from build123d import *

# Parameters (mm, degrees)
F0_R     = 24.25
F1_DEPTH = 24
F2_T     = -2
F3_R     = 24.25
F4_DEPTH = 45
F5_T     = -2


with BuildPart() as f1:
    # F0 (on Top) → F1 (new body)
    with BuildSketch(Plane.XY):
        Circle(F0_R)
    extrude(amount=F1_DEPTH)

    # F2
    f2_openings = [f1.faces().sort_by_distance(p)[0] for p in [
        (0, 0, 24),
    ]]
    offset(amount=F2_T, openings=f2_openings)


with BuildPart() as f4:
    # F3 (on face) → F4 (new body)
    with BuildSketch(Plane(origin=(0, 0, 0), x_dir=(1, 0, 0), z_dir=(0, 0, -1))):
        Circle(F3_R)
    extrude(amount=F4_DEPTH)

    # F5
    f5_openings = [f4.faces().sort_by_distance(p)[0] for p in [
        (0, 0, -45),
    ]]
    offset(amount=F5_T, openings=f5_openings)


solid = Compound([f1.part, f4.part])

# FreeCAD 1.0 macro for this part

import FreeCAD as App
import Part
import Sketcher

V = App.Vector


def faces_at(feature, points):
    """Names of the faces that lie closest to the given points."""
    faces = feature.Shape.Faces
    near = lambda p: min(range(len(faces)), key=lambda i: faces[i].distToShape(Part.Vertex(*p))[0])
    return sorted({f"Face{near(p) + 1}" for p in points})

doc = App.newDocument("Part")
body = doc.addObject("PartDesign::Body", "Body")

sketch1 = body.newObject("Sketcher::SketchObject", "Sketch")
sketch1.AttachmentSupport = (doc.getObject("XY_Plane"), [""])
sketch1.MapMode = "FlatFace"
sketch1.addGeometry(Part.Circle(V(0, 0, 0), V(0, 0, 1), 24), False)
sketch1.addConstraint(Sketcher.Constraint("Coincident", 0, 3, -1, 1))
sketch1.addConstraint(Sketcher.Constraint("Diameter", 0, 48.5))
pad1 = body.newObject("PartDesign::Pad", "Pad")
pad1.Profile = sketch1
pad1.Length = 24
doc.recompute()

thickness = body.newObject("PartDesign::Thickness", "Thickness")
thickness.Base = (pad1, faces_at(pad1, [(0, 0, 24)]))
thickness.Value = 2
thickness.Reversed = True
thickness.Join = "Arc"
body2 = doc.addObject("PartDesign::Body", "Body001")

sketch2 = body2.newObject("Sketcher::SketchObject", "Sketch001")
sketch2.AttachmentSupport = (doc.getObject("XY_Plane001"), [""])
sketch2.MapMode = "FlatFace"
sketch2.addGeometry(Part.Circle(V(0, 0, 0), V(0, 0, 1), 24), False)
sketch2.addConstraint(Sketcher.Constraint("Coincident", 0, 3, -1, 1))
sketch2.addConstraint(Sketcher.Constraint("Diameter", 0, 48.5))
pad2 = body2.newObject("PartDesign::Pad", "Pad001")
pad2.Profile = sketch2
pad2.Length = 45
pad2.Reversed = True
doc.recompute()

thickness2 = body2.newObject("PartDesign::Thickness", "Thickness001")
thickness2.Base = (pad2, faces_at(pad2, [(0, 0, -45)]))
thickness2.Value = 2
thickness2.Reversed = True
thickness2.Join = "Arc"

doc.recompute()
